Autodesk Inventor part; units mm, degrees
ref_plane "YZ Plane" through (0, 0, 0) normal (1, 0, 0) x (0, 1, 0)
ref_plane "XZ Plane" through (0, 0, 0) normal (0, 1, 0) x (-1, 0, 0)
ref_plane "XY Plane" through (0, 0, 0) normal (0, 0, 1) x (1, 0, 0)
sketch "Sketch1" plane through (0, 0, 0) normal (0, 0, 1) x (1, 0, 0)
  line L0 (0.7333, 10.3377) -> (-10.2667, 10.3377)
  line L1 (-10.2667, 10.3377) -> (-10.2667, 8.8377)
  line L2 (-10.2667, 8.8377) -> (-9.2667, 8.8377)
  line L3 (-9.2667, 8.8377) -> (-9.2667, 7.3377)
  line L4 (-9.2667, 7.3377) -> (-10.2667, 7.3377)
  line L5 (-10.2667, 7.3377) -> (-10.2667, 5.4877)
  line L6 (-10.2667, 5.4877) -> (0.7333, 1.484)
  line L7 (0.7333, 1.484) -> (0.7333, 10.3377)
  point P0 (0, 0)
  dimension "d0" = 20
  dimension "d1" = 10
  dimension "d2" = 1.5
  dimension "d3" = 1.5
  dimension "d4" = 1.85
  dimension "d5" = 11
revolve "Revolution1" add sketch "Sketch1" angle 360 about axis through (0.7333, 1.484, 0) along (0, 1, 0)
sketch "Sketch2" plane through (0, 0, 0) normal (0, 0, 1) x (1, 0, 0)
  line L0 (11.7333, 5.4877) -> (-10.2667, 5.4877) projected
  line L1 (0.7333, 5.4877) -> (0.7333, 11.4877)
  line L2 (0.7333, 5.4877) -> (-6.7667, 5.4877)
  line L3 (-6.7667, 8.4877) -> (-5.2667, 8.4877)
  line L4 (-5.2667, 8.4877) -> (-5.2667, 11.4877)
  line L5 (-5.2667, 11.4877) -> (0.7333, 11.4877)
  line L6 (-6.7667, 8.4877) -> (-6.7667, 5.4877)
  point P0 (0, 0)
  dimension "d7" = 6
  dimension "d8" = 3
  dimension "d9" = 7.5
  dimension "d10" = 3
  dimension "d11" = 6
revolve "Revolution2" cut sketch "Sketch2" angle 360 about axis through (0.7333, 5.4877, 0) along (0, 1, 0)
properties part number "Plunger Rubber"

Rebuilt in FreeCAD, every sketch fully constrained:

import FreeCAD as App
import Part
import Sketcher

V = App.Vector
Q = App.Units.Quantity

doc = App.newDocument("Part")
body = doc.addObject("PartDesign::Body", "Body")

# Sketch on XY plane
sketch1 = doc.addObject("Sketcher::SketchObject", "Sketch")
body.addObject(sketch1)
sketch1.AttachmentSupport = (doc.XY_Plane, [""])
sketch1.MapMode = "FlatFace"
sketch1.addGeometry(Part.LineSegment(V(0.7, 1.5, 0), V(0.7, 10.3, 0)), False)
sketch1.addGeometry(Part.LineSegment(V(0.7, 10.3, 0), V(-10.3, 10.3, 0)), False)
sketch1.addGeometry(Part.LineSegment(V(-10.3, 10.3, 0), V(-10.3, 8.8, 0)), False)
sketch1.addGeometry(Part.LineSegment(V(-10.3, 8.8, 0), V(-9.3, 8.8, 0)), False)
sketch1.addGeometry(Part.LineSegment(V(-9.3, 8.8, 0), V(-9.3, 7.3, 0)), False)
sketch1.addGeometry(Part.LineSegment(V(-9.3, 7.3, 0), V(-10.3, 7.3, 0)), False)
sketch1.addGeometry(Part.LineSegment(V(-10.3, 7.3, 0), V(-10.3, 5.5, 0)), False)
sketch1.addGeometry(Part.LineSegment(V(-10.3, 5.5, 0), V(0.7, 1.5, 0)), False)
sketch1.addGeometry(Part.LineSegment(V(0.7, 1.5, 0), V(0.7, 10.3, 0)), True)  # axis
sketch1.addConstraint(Sketcher.Constraint("Coincident", 0, 2, 1, 1))
sketch1.addConstraint(Sketcher.Constraint("Coincident", 1, 2, 2, 1))
sketch1.addConstraint(Sketcher.Constraint("Coincident", 2, 2, 3, 1))
sketch1.addConstraint(Sketcher.Constraint("Coincident", 3, 2, 4, 1))
sketch1.addConstraint(Sketcher.Constraint("Coincident", 4, 2, 5, 1))
sketch1.addConstraint(Sketcher.Constraint("Coincident", 5, 2, 6, 1))
sketch1.addConstraint(Sketcher.Constraint("Coincident", 6, 2, 7, 1))
sketch1.addConstraint(Sketcher.Constraint("Coincident", 7, 2, 0, 1))
sketch1.addConstraint(Sketcher.Constraint("Vertical", 0))
sketch1.addConstraint(Sketcher.Constraint("Horizontal", 1))
sketch1.addConstraint(Sketcher.Constraint("Vertical", 2))
sketch1.addConstraint(Sketcher.Constraint("Horizontal", 3))
sketch1.addConstraint(Sketcher.Constraint("Vertical", 4))
sketch1.addConstraint(Sketcher.Constraint("Horizontal", 5))
sketch1.addConstraint(Sketcher.Constraint("Vertical", 6))
sketch1.addConstraint(Sketcher.Constraint("Vertical", 8))
sketch1.addConstraint(Sketcher.Constraint("Coincident", 8, 1, 7, 2))
sketch1.addConstraint(Sketcher.Constraint("Horizontal", 1, 2, 8, 2))
sketch1.addConstraint(Sketcher.Constraint("Vertical", 2, 2, 5, 2))
sketch1.addConstraint(Sketcher.Constraint("Equal", 2, 4))
sketch1.addConstraint(Sketcher.Constraint("DistanceX", 1, 2, 1, 1, Q("11 mm")))
sketch1.addConstraint(Sketcher.Constraint("Angle", 7, Q("-20.0001 deg")))
sketch1.addConstraint(Sketcher.Constraint("DistanceY", 2, 2, 2, 1, Q("1.5 mm")))
sketch1.addConstraint(Sketcher.Constraint("DistanceX", 3, 2, 0, 2, Q("10 mm")))
sketch1.addConstraint(Sketcher.Constraint("DistanceY", 6, 2, 6, 1, Q("1.85 mm")))
sketch1.addConstraint(Sketcher.Constraint("DistanceY", -1, 1, 7, 2, Q("1.484 mm")))
sketch1.addConstraint(Sketcher.Constraint("DistanceX", -1, 1, 0, 2, Q("0.7333 mm")))
revolution = doc.addObject("PartDesign::Revolution", "Revolution")
body.addObject(revolution)
revolution.Profile = sketch1
revolution.ReferenceAxis = (sketch1, ["Axis0"])
revolution.Angle = 360

# Sketch on XY plane
sketch2 = doc.addObject("Sketcher::SketchObject", "Sketch001")
body.addObject(sketch2)
sketch2.AttachmentSupport = (doc.XY_Plane, [""])
sketch2.MapMode = "FlatFace"
sketch2.addGeometry(Part.LineSegment(V(-6.8, 5.5, 0), V(0.7, 5.5, 0)), False)
sketch2.addGeometry(Part.LineSegment(V(0.7, 5.5, 0), V(0.7, 11.5, 0)), False)
sketch2.addGeometry(Part.LineSegment(V(0.7, 11.5, 0), V(-5.3, 11.5, 0)), False)
sketch2.addGeometry(Part.LineSegment(V(-5.3, 11.5, 0), V(-5.3, 8.5, 0)), False)
sketch2.addGeometry(Part.LineSegment(V(-5.3, 8.5, 0), V(-6.8, 8.5, 0)), False)
sketch2.addGeometry(Part.LineSegment(V(-6.8, 8.5, 0), V(-6.8, 5.5, 0)), False)
sketch2.addGeometry(Part.LineSegment(V(0.7, 5.5, 0), V(0.7, 11.5, 0)), True)  # axis
sketch2.addConstraint(Sketcher.Constraint("Coincident", 0, 2, 1, 1))
sketch2.addConstraint(Sketcher.Constraint("Coincident", 1, 2, 2, 1))
sketch2.addConstraint(Sketcher.Constraint("Coincident", 2, 2, 3, 1))
sketch2.addConstraint(Sketcher.Constraint("Coincident", 3, 2, 4, 1))
sketch2.addConstraint(Sketcher.Constraint("Coincident", 4, 2, 5, 1))
sketch2.addConstraint(Sketcher.Constraint("Coincident", 5, 2, 0, 1))
sketch2.addConstraint(Sketcher.Constraint("Horizontal", 0))
sketch2.addConstraint(Sketcher.Constraint("Vertical", 1))
sketch2.addConstraint(Sketcher.Constraint("Horizontal", 2))
sketch2.addConstraint(Sketcher.Constraint("Vertical", 3))
sketch2.addConstraint(Sketcher.Constraint("Horizontal", 4))
sketch2.addConstraint(Sketcher.Constraint("Vertical", 5))
sketch2.addConstraint(Sketcher.Constraint("Vertical", 6))
sketch2.addConstraint(Sketcher.Constraint("Coincident", 6, 1, 0, 2))
sketch2.addConstraint(Sketcher.Constraint("Horizontal", 2, 2, 6, 2))
sketch2.addConstraint(Sketcher.Constraint("Equal", 2, 1))
sketch2.addConstraint(Sketcher.Constraint("Equal", 3, 5))
sketch2.addConstraint(Sketcher.Constraint("DistanceX", 2, 2, 2, 1, Q("6 mm")))
sketch2.addConstraint(Sketcher.Constraint("DistanceX", 0, 1, 0, 2, Q("7.5 mm")))
sketch2.addConstraint(Sketcher.Constraint("DistanceX", -1, 1, 0, 2, Q("0.7333 mm")))
sketch2.addConstraint(Sketcher.Constraint("DistanceY", -1, 1, 0, 2, Q("5.4877 mm")))
groove = doc.addObject("PartDesign::Groove", "Groove")
body.addObject(groove)
groove.Profile = sketch2
groove.ReferenceAxis = (sketch2, ["Axis0"])
groove.Angle = 360

doc.recompute()
